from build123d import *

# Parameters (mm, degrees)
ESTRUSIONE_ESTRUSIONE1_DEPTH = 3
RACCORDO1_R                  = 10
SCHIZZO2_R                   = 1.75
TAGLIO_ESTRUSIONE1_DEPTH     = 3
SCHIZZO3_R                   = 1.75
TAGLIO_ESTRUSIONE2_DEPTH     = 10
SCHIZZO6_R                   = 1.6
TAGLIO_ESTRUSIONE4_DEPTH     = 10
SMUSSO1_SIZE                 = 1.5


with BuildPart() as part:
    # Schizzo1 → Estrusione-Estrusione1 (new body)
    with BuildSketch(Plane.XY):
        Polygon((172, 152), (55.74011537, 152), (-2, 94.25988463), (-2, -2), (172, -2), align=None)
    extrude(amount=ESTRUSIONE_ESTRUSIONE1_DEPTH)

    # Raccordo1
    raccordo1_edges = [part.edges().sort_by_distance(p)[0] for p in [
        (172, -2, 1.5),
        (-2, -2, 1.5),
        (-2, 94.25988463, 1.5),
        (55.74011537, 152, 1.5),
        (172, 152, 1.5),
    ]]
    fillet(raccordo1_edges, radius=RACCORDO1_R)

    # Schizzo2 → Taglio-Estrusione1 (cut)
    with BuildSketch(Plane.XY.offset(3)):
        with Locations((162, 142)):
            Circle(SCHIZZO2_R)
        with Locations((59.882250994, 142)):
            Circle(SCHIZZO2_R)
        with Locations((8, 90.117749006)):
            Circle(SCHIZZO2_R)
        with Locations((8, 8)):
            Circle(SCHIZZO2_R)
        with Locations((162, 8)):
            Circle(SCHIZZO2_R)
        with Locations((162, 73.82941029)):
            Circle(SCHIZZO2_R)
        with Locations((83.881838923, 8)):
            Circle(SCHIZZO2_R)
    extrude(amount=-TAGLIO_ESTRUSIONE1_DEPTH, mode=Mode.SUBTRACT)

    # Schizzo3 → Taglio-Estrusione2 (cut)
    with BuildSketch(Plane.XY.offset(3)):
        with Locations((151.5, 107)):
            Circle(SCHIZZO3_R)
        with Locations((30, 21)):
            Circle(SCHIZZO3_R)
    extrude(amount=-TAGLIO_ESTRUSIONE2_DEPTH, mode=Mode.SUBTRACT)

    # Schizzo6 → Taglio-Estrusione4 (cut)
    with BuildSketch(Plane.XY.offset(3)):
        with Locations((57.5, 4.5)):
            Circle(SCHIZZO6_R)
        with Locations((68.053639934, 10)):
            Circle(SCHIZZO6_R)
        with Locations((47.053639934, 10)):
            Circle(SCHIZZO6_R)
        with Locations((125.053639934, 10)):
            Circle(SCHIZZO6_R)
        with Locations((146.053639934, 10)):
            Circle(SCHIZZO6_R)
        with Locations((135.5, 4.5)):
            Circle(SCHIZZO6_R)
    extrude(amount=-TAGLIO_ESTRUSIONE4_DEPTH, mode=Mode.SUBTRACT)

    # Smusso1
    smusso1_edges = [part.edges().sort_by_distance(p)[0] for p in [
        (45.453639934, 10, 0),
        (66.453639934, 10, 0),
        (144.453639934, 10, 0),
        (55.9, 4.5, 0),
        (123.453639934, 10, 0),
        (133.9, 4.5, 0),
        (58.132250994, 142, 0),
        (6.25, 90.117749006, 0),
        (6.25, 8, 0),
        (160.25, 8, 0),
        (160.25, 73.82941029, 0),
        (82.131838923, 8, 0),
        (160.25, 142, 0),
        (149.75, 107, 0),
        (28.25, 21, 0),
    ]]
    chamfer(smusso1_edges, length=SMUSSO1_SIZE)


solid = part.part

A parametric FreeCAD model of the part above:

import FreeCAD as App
import Part
import Sketcher
Q = App.Units.Quantity


def edges_at(feature, points):
    """Names of the edges that pass closest to the given points."""
    edges = feature.Shape.Edges
    near = lambda p: min(range(len(edges)), key=lambda i: edges[i].distToShape(Part.Vertex(*p))[0])
    return sorted({f"Edge{near(p) + 1}" for p in points})


def add_polygon(sketch, points):
    """Adds a closed chain of lines whose ends are joined by coincident constraints."""
    first, n = sketch.GeometryCount, len(points)
    for a, b in zip(points, points[1:] + points[:1]):
        sketch.addGeometry(Part.LineSegment(App.Vector(*a, 0), App.Vector(*b, 0)), False)
    for i in range(n):
        sketch.addConstraint(Sketcher.Constraint("Coincident", first + i, 2, first + (i + 1) % n, 1))

doc = App.newDocument("Part")
body = doc.addObject("PartDesign::Body", "Body")

sketch1 = body.newObject("Sketcher::SketchObject", "Sketch")
sketch1.AttachmentSupport = (doc.getObject("XY_Plane"), [""])
sketch1.MapMode = "FlatFace"
add_polygon(sketch1, [(172, 152), (56, 152), (-2, 94), (-2, -2), (172, -2)])
sketch1.addConstraint([
    Sketcher.Constraint("Horizontal", 0),
    Sketcher.Constraint("Vertical", 2),
    Sketcher.Constraint("Horizontal", 3),
    Sketcher.Constraint("Vertical", 4),
    Sketcher.Constraint("DistanceX", 3, 1, 3, 2, 174.0),
    Sketcher.Constraint("DistanceY", 4, 1, 4, 2, 154.0),
    Sketcher.Constraint("Angle", 1, Q("-135 deg")),
    Sketcher.Constraint("DistanceY", -1, 1, 0, 2, 152.0),
    Sketcher.Constraint("DistanceX", 1, 2, -1, 1, 2.0),
    Sketcher.Constraint("DistanceX", 0, 2, 0, 1, 116.259885),
])
pad1 = body.newObject("PartDesign::Pad", "Pad")
pad1.Profile = sketch1
pad1.Length = 3
doc.recompute()

fillet = body.newObject("PartDesign::Fillet", "Fillet")
fillet.Base = (pad1, edges_at(pad1, [
    (172, -2, 1.5),
    (-2, -2, 1.5),
    (-2, 94.26, 1.5),
    (55.74, 152, 1.5),
    (172, 152, 1.5),
]))
fillet.Radius = 10

sketch2 = body.newObject("Sketcher::SketchObject", "Sketch001")
sketch2.AttachmentSupport = (doc.getObject("XY_Plane"), [""])
sketch2.MapMode = "FlatFace"
sketch2.AttachmentOffset = App.Placement(App.Vector(0, 0, 3), App.Rotation())
sketch2.addGeometry([
    Part.Circle(App.Vector(162, 142, 0), App.Vector(0, 0, 1), 1.8),
    Part.Circle(App.Vector(59.9, 142, 0), App.Vector(0, 0, 1), 1.8),
    Part.Circle(App.Vector(8, 90.1, 0), App.Vector(0, 0, 1), 1.8),
    Part.Circle(App.Vector(8, 8, 0), App.Vector(0, 0, 1), 1.8),
    Part.Circle(App.Vector(162, 8, 0), App.Vector(0, 0, 1), 1.8),
    Part.Circle(App.Vector(162, 73.8, 0), App.Vector(0, 0, 1), 1.8),
    Part.Circle(App.Vector(83.9, 8, 0), App.Vector(0, 0, 1), 1.8),
], False)
sketch2.addConstraint([
    Sketcher.Constraint("Equal", 0, 1),
    Sketcher.Constraint("Equal", 1, 2),
    Sketcher.Constraint("Equal", 2, 3),
    Sketcher.Constraint("Equal", 3, 4),
    Sketcher.Constraint("Equal", 4, 5),
    Sketcher.Constraint("Equal", 5, 6),
    Sketcher.Constraint("Horizontal", 0, 3, 1, 3),
    Sketcher.Constraint("Horizontal", 3, 3, 4, 3),
    Sketcher.Constraint("Horizontal", 4, 3, 6, 3),
    Sketcher.Constraint("Vertical", 2, 3, 3, 3),
    Sketcher.Constraint("Vertical", 0, 3, 4, 3),
    Sketcher.Constraint("Vertical", 4, 3, 5, 3),
    Sketcher.Constraint("Diameter", 0, 3.5),
    Sketcher.Constraint("DistanceX", -1, 1, 0, 3, 162.0),
    Sketcher.Constraint("DistanceY", -1, 1, 0, 3, 142.0),
    Sketcher.Constraint("DistanceX", -1, 1, 2, 3, 8.0),
    Sketcher.Constraint("DistanceY", -1, 1, 3, 3, 8.0),
    Sketcher.Constraint("DistanceX", -1, 1, 1, 3, 59.882251),
    Sketcher.Constraint("DistanceY", -1, 1, 2, 3, 90.117749),
    Sketcher.Constraint("DistanceY", -1, 1, 5, 3, 73.82941),
    Sketcher.Constraint("DistanceX", -1, 1, 6, 3, 83.881839),
])
pocket1 = body.newObject("PartDesign::Pocket", "Pocket")
pocket1.Profile = sketch2
pocket1.Length = 3

sketch3 = body.newObject("Sketcher::SketchObject", "Sketch002")
sketch3.AttachmentSupport = (doc.getObject("XY_Plane"), [""])
sketch3.MapMode = "FlatFace"
sketch3.AttachmentOffset = App.Placement(App.Vector(0, 0, 3), App.Rotation())
sketch3.addGeometry([
    Part.Circle(App.Vector(151.5, 107, 0), App.Vector(0, 0, 1), 1.8),
    Part.Circle(App.Vector(30, 21, 0), App.Vector(0, 0, 1), 1.8),
], False)
sketch3.addConstraint([
    Sketcher.Constraint("Equal", 0, 1),
    Sketcher.Constraint("Diameter", 0, 3.5),
    Sketcher.Constraint("DistanceY", -1, 1, 0, 3, 107.0),
    Sketcher.Constraint("DistanceX", -1, 1, 1, 3, 30.0),
    Sketcher.Constraint("DistanceY", -1, 1, 1, 3, 21.0),
    Sketcher.Constraint("DistanceX", -1, 1, 0, 3, 151.5),
])
pocket2 = body.newObject("PartDesign::Pocket", "Pocket001")
pocket2.Profile = sketch3
pocket2.Length = 10

sketch4 = body.newObject("Sketcher::SketchObject", "Sketch003")
sketch4.AttachmentSupport = (doc.getObject("XY_Plane"), [""])
sketch4.MapMode = "FlatFace"
sketch4.AttachmentOffset = App.Placement(App.Vector(0, 0, 3), App.Rotation())
sketch4.addGeometry([
    Part.Circle(App.Vector(57.5, 4.5, 0), App.Vector(0, 0, 1), 1.6),
    Part.Circle(App.Vector(68.1, 10, 0), App.Vector(0, 0, 1), 1.6),
    Part.Circle(App.Vector(47.1, 10, 0), App.Vector(0, 0, 1), 1.6),
    Part.Circle(App.Vector(125.1, 10, 0), App.Vector(0, 0, 1), 1.6),
    Part.Circle(App.Vector(146.1, 10, 0), App.Vector(0, 0, 1), 1.6),
    Part.Circle(App.Vector(135.5, 4.5, 0), App.Vector(0, 0, 1), 1.6),
], False)
sketch4.addConstraint([
    Sketcher.Constraint("Equal", 0, 1),
    Sketcher.Constraint("Equal", 1, 2),
    Sketcher.Constraint("Equal", 2, 3),
    Sketcher.Constraint("Equal", 3, 4),
    Sketcher.Constraint("Equal", 4, 5),
    Sketcher.Constraint("Horizontal", 1, 3, 2, 3),
    Sketcher.Constraint("Horizontal", 2, 3, 3, 3),
    Sketcher.Constraint("Horizontal", 3, 3, 4, 3),
    Sketcher.Constraint("Horizontal", 0, 3, 5, 3),
    Sketcher.Constraint("Diameter", 0, 3.2),
    Sketcher.Constraint("DistanceY", -1, 1, 1, 3, 10.0),
    Sketcher.Constraint("DistanceX", 2, 3, 1, 3, 21.0),
    Sketcher.Constraint("DistanceX", 1, 3, 3, 3, 57.0),
    Sketcher.Constraint("DistanceX", 3, 3, 4, 3, 21.0),
    Sketcher.Constraint("DistanceX", 0, 3, 5, 3, 78.0),
    Sketcher.Constraint("DistanceX", -1, 1, 0, 3, 57.5),
    Sketcher.Constraint("DistanceY", -1, 1, 0, 3, 4.5),
    Sketcher.Constraint("DistanceX", -1, 1, 1, 3, 68.05364),
])
pocket3 = body.newObject("PartDesign::Pocket", "Pocket002")
pocket3.Profile = sketch4
pocket3.Length = 10
doc.recompute()

chamfer = body.newObject("PartDesign::Chamfer", "Chamfer")
chamfer.Base = (pocket3, edges_at(pocket3, [
    (45.454, 10, 0),
    (66.454, 10, 0),
    (144.454, 10, 0),
    (55.9, 4.5, 0),
    (123.454, 10, 0),
    (133.9, 4.5, 0),
    (58.132, 142, 0),
    (6.25, 90.118, 0),
    (6.25, 8, 0),
    (160.25, 8, 0),
    (160.25, 73.829, 0),
    (82.132, 8, 0),
    (160.25, 142, 0),
    (149.75, 107, 0),
    (28.25, 21, 0),
]))
chamfer.Size = 1.5

doc.recompute()
